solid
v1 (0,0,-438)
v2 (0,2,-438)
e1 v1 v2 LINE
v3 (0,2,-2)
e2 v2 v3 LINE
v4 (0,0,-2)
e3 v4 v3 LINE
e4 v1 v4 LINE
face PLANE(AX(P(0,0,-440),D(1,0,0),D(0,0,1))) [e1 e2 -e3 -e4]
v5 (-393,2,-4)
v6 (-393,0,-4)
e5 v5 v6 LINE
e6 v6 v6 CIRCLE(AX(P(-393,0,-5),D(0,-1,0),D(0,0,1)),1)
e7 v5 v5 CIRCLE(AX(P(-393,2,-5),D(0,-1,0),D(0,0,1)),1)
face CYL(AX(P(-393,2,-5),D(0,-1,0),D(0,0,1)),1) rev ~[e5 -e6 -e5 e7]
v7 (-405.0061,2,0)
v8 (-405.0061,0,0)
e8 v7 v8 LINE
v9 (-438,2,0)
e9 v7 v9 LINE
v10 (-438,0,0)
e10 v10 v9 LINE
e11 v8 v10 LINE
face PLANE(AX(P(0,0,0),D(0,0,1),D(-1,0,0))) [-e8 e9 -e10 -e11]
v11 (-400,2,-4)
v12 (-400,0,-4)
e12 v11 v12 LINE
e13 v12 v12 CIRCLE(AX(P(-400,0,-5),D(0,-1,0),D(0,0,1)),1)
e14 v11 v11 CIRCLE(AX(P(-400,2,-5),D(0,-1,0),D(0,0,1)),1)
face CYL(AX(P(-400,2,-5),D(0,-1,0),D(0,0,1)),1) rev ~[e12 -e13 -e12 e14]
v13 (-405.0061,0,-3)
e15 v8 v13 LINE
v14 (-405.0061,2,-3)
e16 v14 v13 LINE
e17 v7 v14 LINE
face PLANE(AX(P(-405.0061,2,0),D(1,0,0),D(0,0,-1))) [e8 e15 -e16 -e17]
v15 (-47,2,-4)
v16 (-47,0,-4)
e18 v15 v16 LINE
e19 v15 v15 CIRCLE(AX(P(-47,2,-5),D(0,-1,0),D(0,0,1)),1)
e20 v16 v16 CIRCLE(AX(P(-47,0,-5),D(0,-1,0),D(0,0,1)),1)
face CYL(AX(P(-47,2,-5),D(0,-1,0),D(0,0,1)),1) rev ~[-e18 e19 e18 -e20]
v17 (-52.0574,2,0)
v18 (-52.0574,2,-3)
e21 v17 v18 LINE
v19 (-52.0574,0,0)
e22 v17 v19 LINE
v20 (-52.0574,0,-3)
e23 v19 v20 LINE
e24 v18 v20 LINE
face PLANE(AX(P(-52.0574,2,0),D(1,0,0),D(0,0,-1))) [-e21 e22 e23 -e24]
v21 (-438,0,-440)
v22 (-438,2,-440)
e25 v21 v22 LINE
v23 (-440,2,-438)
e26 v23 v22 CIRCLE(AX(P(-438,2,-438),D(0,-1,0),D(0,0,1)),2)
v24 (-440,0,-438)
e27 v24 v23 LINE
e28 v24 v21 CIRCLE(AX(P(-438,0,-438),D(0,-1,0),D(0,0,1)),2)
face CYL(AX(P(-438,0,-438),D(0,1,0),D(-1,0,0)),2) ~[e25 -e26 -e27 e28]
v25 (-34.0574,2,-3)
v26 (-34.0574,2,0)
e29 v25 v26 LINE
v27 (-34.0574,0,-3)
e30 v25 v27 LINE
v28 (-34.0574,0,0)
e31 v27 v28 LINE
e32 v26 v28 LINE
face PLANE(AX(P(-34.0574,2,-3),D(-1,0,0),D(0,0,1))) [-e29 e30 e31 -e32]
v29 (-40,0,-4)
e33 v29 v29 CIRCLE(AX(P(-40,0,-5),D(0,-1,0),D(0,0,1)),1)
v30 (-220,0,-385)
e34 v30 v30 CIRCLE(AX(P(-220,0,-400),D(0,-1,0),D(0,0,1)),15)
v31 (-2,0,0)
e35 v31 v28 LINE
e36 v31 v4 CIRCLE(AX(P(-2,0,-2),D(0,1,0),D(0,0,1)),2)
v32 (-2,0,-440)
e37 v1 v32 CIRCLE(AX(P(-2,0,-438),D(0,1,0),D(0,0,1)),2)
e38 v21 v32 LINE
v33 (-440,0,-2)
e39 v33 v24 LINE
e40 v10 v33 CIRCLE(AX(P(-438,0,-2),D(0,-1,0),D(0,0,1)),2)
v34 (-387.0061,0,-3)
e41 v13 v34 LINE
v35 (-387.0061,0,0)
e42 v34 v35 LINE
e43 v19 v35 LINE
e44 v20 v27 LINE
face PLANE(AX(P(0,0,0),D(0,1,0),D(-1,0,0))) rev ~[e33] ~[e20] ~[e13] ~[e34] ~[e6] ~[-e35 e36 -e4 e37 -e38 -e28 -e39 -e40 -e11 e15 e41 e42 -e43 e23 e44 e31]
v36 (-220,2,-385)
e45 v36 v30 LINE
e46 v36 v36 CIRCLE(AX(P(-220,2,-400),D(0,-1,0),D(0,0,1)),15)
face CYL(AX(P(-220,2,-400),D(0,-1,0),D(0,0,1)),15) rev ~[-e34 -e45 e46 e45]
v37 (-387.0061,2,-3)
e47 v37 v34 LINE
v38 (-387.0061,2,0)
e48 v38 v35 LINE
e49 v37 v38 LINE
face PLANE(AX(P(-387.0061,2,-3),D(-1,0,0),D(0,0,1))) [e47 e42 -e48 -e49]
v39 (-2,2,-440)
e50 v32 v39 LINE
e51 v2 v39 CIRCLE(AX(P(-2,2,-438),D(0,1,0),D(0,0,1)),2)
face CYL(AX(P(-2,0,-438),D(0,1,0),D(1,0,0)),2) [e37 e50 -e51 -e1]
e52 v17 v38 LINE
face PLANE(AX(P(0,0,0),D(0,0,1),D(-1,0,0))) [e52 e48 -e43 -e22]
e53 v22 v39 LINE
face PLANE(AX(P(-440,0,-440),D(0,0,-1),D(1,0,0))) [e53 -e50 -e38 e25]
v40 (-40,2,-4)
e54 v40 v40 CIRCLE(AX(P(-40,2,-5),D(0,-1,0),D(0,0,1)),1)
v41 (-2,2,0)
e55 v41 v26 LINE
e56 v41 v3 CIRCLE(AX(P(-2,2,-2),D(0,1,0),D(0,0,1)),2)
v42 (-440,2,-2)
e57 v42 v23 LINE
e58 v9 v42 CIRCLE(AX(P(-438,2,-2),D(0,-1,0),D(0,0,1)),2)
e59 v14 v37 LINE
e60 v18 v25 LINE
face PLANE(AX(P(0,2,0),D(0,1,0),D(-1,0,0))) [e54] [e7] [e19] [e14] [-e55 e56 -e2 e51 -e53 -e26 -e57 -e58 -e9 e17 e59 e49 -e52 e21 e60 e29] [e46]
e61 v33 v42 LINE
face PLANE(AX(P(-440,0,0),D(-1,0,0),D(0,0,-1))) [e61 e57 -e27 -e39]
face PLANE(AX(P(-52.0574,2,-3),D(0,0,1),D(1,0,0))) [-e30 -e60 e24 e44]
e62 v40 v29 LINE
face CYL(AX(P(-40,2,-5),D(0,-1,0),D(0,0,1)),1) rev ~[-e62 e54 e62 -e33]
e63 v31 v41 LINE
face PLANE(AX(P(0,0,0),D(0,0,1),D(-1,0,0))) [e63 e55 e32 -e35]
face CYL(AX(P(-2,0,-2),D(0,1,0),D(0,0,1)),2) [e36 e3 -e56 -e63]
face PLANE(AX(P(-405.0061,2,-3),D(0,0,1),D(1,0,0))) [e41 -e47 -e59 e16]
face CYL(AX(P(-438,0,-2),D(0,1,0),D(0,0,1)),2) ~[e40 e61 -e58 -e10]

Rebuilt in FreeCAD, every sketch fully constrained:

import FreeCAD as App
import Part
import Sketcher
from FreeCAD import Vector
Q = App.Units.Quantity


def edges_at(feature, points):
    """Names of the edges that pass closest to the given points."""
    edges = feature.Shape.Edges
    near = lambda p: min(range(len(edges)), key=lambda i: edges[i].distToShape(Part.Vertex(*p))[0])
    return sorted({f"Edge{near(p) + 1}" for p in points})


def add_polygon(sketch, points):
    """Adds a closed chain of lines whose ends are joined by coincident constraints."""
    first, n = sketch.GeometryCount, len(points)
    for a, b in zip(points, points[1:] + points[:1]):
        sketch.addGeometry(Part.LineSegment(App.Vector(*a, 0), App.Vector(*b, 0)), False)
    for i in range(n):
        sketch.addConstraint(Sketcher.Constraint("Coincident", first + i, 2, first + (i + 1) % n, 1))

doc = App.newDocument("Part")
body = doc.addObject("PartDesign::Body", "Body")

sketch1 = doc.addObject("Sketcher::SketchObject", "Sketch")
body.addObject(sketch1)
sketch1.AttachmentSupport = (doc.XZ_Plane, [""])
sketch1.MapMode = "FlatFace"
add_polygon(sketch1, [(-440, 0), (0, 0), (0, -440), (-440, -440)])
sketch1.addConstraint([
    Sketcher.Constraint("Horizontal", 0),
    Sketcher.Constraint("Vertical", 1),
    Sketcher.Constraint("Horizontal", 2),
    Sketcher.Constraint("Vertical", 3),
    Sketcher.Constraint("Coincident", 0, 2, -1, 1),
    Sketcher.Constraint("Equal", 2, 1),
    Sketcher.Constraint("DistanceX", 0, 1, 0, 2, Q("440 mm")),
])
pad1 = doc.addObject("PartDesign::Pad", "Pad")
body.addObject(pad1)
pad1.Profile = sketch1
pad1.Length = 2
pad1.Reversed = True

sketch2 = doc.addObject("Sketcher::SketchObject", "Sketch001")
body.addObject(sketch2)
sketch2.AttachmentSupport = (doc.XZ_Plane, [""])
sketch2.MapMode = "FlatFace"
sketch2.AttachmentOffset = App.Placement(Vector(0, 0, -2), App.Rotation())
sketch2.addGeometry([
    Part.Circle(Vector(-40, -5, 0), Vector(0, 0, 1), 1),
    Part.Circle(Vector(-47, -5, 0), Vector(0, 0, 1), 1),
    Part.Circle(Vector(-400, -5, 0), Vector(0, 0, 1), 1),
    Part.Circle(Vector(-393, -5, 0), Vector(0, 0, 1), 1),
], False)
sketch2.addConstraint([
    Sketcher.Constraint("Equal", 0, 1),
    Sketcher.Constraint("Equal", 1, 2),
    Sketcher.Constraint("Equal", 2, 3),
    Sketcher.Constraint("Horizontal", 0, 3, 1, 3),
    Sketcher.Constraint("Horizontal", 1, 3, 2, 3),
    Sketcher.Constraint("Horizontal", 2, 3, 3, 3),
    Sketcher.Constraint("Diameter", 0, Q("2 mm")),
    Sketcher.Constraint("DistanceX", 0, 3, -1, 1, Q("40 mm")),
    Sketcher.Constraint("DistanceY", 0, 3, -1, 1, Q("5 mm")),
    Sketcher.Constraint("DistanceX", 1, 3, -1, 1, Q("47 mm")),
    Sketcher.Constraint("DistanceX", 2, 3, -1, 1, Q("400 mm")),
    Sketcher.Constraint("DistanceX", 3, 3, -1, 1, Q("393 mm")),
])
doc.recompute()
hole = doc.addObject("PartDesign::Hole", "Hole")
body.addObject(hole)
hole.Profile = sketch2
hole.ThreadType = "None"
hole.Diameter = 2
hole.DepthType = "ThroughAll"
hole.Reversed = True
doc.recompute()

fillet = doc.addObject("PartDesign::Fillet", "Fillet")
body.addObject(fillet)
fillet.Base = (hole, edges_at(hole, [
    (0, 1, -440),
    (-440, 1, -440),
    (-440, 1, 0),
    (0, 1, 0),
]))
fillet.Radius = 2

sketch3 = doc.addObject("Sketcher::SketchObject", "Sketch002")
body.addObject(sketch3)
sketch3.AttachmentSupport = (doc.XZ_Plane, [""])
sketch3.MapMode = "FlatFace"
sketch3.AttachmentOffset = App.Placement(Vector(0, 0, -2), App.Rotation())
sketch3.addGeometry(Part.Circle(Vector(-220, -400, 0), Vector(0, 0, 1), 15), False)
sketch3.addConstraint([
    Sketcher.Constraint("Diameter", 0, Q("30 mm")),
    Sketcher.Constraint("DistanceX", 0, 3, -1, 1, Q("220 mm")),
    Sketcher.Constraint("DistanceY", 0, 3, -1, 1, Q("400 mm")),
])
doc.recompute()
hole2 = doc.addObject("PartDesign::Hole", "Hole001")
body.addObject(hole2)
hole2.Profile = sketch3
hole2.ThreadType = "None"
hole2.Diameter = 30
hole2.DepthType = "ThroughAll"
hole2.Reversed = True

sketch4 = doc.addObject("Sketcher::SketchObject", "Sketch003")
body.addObject(sketch4)
sketch4.AttachmentSupport = (doc.XZ_Plane, [""])
sketch4.MapMode = "FlatFace"
sketch4.AttachmentOffset = App.Placement(Vector(0, 0, -2), App.Rotation())
add_polygon(sketch4, [(-405.0061, -3), (-405.0061, 0), (-387.0061, 0), (-387.0061, -3)])
add_polygon(sketch4, [(-52.0574, -3), (-52.0574, 0), (-34.0574, 0), (-34.0574, -3)])
sketch4.addConstraint([
    Sketcher.Constraint("Vertical", 0),
    Sketcher.Constraint("Horizontal", 1),
    Sketcher.Constraint("Vertical", 2),
    Sketcher.Constraint("Horizontal", 3),
    Sketcher.Constraint("Vertical", 4),
    Sketcher.Constraint("Horizontal", 5),
    Sketcher.Constraint("Vertical", 6),
    Sketcher.Constraint("Horizontal", 7),
    Sketcher.Constraint("PointOnObject", 0, 2, -1),
    Sketcher.Constraint("PointOnObject", 4, 2, -1),
    Sketcher.Constraint("Horizontal", 3, 2, 6, 2),
    Sketcher.Constraint("Equal", 3, 5),
    Sketcher.Constraint("DistanceX", 1, 1, 1, 2, Q("18 mm")),
    Sketcher.Constraint("DistanceY", 0, 1, 0, 2, Q("3 mm")),
    Sketcher.Constraint("DistanceX", 0, 2, -1, 1, Q("405.006 mm")),
    Sketcher.Constraint("DistanceX", 4, 2, -1, 1, Q("52.0574 mm")),
])
pocket1 = doc.addObject("PartDesign::Pocket", "Pocket")
body.addObject(pocket1)
pocket1.Profile = sketch4
pocket1.Length = 2
pocket1.Reversed = True

doc.recompute()
